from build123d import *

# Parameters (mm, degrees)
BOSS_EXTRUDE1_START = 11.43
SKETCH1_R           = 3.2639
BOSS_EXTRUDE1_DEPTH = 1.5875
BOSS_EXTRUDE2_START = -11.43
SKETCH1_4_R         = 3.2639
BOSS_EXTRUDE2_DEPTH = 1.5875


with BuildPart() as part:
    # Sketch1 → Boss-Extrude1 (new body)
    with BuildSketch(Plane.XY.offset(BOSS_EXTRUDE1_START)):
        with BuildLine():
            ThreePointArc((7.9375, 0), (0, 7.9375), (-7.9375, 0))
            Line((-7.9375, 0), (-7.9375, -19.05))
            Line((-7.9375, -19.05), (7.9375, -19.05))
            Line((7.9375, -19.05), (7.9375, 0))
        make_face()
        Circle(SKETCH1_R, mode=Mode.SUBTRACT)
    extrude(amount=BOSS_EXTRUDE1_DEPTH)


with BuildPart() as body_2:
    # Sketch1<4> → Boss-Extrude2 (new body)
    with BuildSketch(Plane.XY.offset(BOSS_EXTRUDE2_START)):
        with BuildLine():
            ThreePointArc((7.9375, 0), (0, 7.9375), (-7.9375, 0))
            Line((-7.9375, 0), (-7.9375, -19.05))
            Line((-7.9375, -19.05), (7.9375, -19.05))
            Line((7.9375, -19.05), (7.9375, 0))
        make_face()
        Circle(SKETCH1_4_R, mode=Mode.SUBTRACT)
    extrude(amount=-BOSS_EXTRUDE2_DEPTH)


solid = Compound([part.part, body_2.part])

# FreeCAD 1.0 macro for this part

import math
import FreeCAD as App
import Part
import Sketcher

V = App.Vector
Q = App.Units.Quantity

doc = App.newDocument("Part")
params = doc.addObject("Spreadsheet::Sheet", "Params")
for row, (alias, value) in enumerate([
    ("sketch1_diameter", "0.257 in"),
    ("sketch1_radius", "0.3125 in"),
    ("sketch1_height", "0.75 in"),
    ("pad1_length", "0.0625 in"),
    ("sketch2_diameter", "0.257 in"),
    ("sketch2_radius", "0.3125 in"),
    ("sketch2_height", "0.75 in"),
    ("pad2_length", "0.0625 in"),
], start=1):
    params.set(f"A{row}", alias)
    params.set(f"B{row}", "=" + value)
    params.setAlias(f"B{row}", alias)

body = doc.addObject("PartDesign::Body", "Body")

sketch1 = body.newObject("Sketcher::SketchObject", "Sketch")
sketch1.AttachmentSupport = (doc.getObject("XY_Plane"), [""])
sketch1.MapMode = "FlatFace"
sketch1.AttachmentOffset = App.Placement(V(0, 0, 0.45 * 25.4), App.Rotation())
sketch1.addGeometry([
    Part.ArcOfCircle(Part.Circle(V(0, 0, 0), V(0, 0, 1), 7.9), math.radians(0), math.radians(180)),
    Part.LineSegment(V(-7.9, 0, 0), V(-7.9, -19.1, 0)),
    Part.LineSegment(V(-7.9, -19.1, 0), V(7.9, -19.1, 0)),
    Part.LineSegment(V(7.9, -19.1, 0), V(7.9, 0, 0)),
    Part.Circle(V(0, 0, 0), V(0, 0, 1), 3.3),
], False)
sketch1.addConstraint([
    Sketcher.Constraint("Tangent", 0, 2, 1, 1),
    Sketcher.Constraint("Coincident", 1, 2, 2, 1),
    Sketcher.Constraint("Coincident", 2, 2, 3, 1),
    Sketcher.Constraint("Tangent", 3, 2, 0, 1),
    Sketcher.Constraint("Vertical", 1),
    Sketcher.Constraint("Horizontal", 2),
    Sketcher.Constraint("Vertical", 3),
    Sketcher.Constraint("Coincident", 0, 3, -1, 1),
    Sketcher.Constraint("Coincident", 4, 3, -1, 1),
    Sketcher.Constraint("Diameter", 4, Q("0.257 in")),
    Sketcher.Constraint("Radius", 0, Q("0.3125 in")),
    Sketcher.Constraint("DistanceY", 1, 2, 1, 1, Q("0.75 in")),
])
sketch1.setExpression("Constraints[9]", "Params.sketch1_diameter")
sketch1.setExpression("Constraints[10]", "Params.sketch1_radius")
sketch1.setExpression("Constraints[11]", "Params.sketch1_height")
pad1 = body.newObject("PartDesign::Pad", "Pad")
pad1.Profile = sketch1
pad1.setExpression("Length", "Params.pad1_length")
body2 = doc.addObject("PartDesign::Body", "Body001")

sketch2 = body2.newObject("Sketcher::SketchObject", "Sketch001")
sketch2.AttachmentSupport = (doc.getObject("XY_Plane001"), [""])
sketch2.MapMode = "FlatFace"
sketch2.AttachmentOffset = App.Placement(V(0, 0, -0.45 * 25.4), App.Rotation())
sketch2.addGeometry([
    Part.ArcOfCircle(Part.Circle(V(0, 0, 0), V(0, 0, 1), 7.9), math.radians(0), math.radians(180)),
    Part.LineSegment(V(-7.9, 0, 0), V(-7.9, -19.1, 0)),
    Part.LineSegment(V(-7.9, -19.1, 0), V(7.9, -19.1, 0)),
    Part.LineSegment(V(7.9, -19.1, 0), V(7.9, 0, 0)),
    Part.Circle(V(0, 0, 0), V(0, 0, 1), 3.3),
], False)
sketch2.addConstraint([
    Sketcher.Constraint("Tangent", 0, 2, 1, 1),
    Sketcher.Constraint("Coincident", 1, 2, 2, 1),
    Sketcher.Constraint("Coincident", 2, 2, 3, 1),
    Sketcher.Constraint("Tangent", 3, 2, 0, 1),
    Sketcher.Constraint("Vertical", 1),
    Sketcher.Constraint("Horizontal", 2),
    Sketcher.Constraint("Vertical", 3),
    Sketcher.Constraint("Coincident", 0, 3, -1, 1),
    Sketcher.Constraint("Coincident", 4, 3, -1, 1),
    Sketcher.Constraint("Diameter", 4, Q("0.257 in")),
    Sketcher.Constraint("Radius", 0, Q("0.3125 in")),
    Sketcher.Constraint("DistanceY", 1, 2, 1, 1, Q("0.75 in")),
])
sketch2.setExpression("Constraints[9]", "Params.sketch2_diameter")
sketch2.setExpression("Constraints[10]", "Params.sketch2_radius")
sketch2.setExpression("Constraints[11]", "Params.sketch2_height")
pad2 = body2.newObject("PartDesign::Pad", "Pad001")
pad2.Profile = sketch2
pad2.setExpression("Length", "Params.pad2_length")
pad2.Reversed = True

doc.recompute()
